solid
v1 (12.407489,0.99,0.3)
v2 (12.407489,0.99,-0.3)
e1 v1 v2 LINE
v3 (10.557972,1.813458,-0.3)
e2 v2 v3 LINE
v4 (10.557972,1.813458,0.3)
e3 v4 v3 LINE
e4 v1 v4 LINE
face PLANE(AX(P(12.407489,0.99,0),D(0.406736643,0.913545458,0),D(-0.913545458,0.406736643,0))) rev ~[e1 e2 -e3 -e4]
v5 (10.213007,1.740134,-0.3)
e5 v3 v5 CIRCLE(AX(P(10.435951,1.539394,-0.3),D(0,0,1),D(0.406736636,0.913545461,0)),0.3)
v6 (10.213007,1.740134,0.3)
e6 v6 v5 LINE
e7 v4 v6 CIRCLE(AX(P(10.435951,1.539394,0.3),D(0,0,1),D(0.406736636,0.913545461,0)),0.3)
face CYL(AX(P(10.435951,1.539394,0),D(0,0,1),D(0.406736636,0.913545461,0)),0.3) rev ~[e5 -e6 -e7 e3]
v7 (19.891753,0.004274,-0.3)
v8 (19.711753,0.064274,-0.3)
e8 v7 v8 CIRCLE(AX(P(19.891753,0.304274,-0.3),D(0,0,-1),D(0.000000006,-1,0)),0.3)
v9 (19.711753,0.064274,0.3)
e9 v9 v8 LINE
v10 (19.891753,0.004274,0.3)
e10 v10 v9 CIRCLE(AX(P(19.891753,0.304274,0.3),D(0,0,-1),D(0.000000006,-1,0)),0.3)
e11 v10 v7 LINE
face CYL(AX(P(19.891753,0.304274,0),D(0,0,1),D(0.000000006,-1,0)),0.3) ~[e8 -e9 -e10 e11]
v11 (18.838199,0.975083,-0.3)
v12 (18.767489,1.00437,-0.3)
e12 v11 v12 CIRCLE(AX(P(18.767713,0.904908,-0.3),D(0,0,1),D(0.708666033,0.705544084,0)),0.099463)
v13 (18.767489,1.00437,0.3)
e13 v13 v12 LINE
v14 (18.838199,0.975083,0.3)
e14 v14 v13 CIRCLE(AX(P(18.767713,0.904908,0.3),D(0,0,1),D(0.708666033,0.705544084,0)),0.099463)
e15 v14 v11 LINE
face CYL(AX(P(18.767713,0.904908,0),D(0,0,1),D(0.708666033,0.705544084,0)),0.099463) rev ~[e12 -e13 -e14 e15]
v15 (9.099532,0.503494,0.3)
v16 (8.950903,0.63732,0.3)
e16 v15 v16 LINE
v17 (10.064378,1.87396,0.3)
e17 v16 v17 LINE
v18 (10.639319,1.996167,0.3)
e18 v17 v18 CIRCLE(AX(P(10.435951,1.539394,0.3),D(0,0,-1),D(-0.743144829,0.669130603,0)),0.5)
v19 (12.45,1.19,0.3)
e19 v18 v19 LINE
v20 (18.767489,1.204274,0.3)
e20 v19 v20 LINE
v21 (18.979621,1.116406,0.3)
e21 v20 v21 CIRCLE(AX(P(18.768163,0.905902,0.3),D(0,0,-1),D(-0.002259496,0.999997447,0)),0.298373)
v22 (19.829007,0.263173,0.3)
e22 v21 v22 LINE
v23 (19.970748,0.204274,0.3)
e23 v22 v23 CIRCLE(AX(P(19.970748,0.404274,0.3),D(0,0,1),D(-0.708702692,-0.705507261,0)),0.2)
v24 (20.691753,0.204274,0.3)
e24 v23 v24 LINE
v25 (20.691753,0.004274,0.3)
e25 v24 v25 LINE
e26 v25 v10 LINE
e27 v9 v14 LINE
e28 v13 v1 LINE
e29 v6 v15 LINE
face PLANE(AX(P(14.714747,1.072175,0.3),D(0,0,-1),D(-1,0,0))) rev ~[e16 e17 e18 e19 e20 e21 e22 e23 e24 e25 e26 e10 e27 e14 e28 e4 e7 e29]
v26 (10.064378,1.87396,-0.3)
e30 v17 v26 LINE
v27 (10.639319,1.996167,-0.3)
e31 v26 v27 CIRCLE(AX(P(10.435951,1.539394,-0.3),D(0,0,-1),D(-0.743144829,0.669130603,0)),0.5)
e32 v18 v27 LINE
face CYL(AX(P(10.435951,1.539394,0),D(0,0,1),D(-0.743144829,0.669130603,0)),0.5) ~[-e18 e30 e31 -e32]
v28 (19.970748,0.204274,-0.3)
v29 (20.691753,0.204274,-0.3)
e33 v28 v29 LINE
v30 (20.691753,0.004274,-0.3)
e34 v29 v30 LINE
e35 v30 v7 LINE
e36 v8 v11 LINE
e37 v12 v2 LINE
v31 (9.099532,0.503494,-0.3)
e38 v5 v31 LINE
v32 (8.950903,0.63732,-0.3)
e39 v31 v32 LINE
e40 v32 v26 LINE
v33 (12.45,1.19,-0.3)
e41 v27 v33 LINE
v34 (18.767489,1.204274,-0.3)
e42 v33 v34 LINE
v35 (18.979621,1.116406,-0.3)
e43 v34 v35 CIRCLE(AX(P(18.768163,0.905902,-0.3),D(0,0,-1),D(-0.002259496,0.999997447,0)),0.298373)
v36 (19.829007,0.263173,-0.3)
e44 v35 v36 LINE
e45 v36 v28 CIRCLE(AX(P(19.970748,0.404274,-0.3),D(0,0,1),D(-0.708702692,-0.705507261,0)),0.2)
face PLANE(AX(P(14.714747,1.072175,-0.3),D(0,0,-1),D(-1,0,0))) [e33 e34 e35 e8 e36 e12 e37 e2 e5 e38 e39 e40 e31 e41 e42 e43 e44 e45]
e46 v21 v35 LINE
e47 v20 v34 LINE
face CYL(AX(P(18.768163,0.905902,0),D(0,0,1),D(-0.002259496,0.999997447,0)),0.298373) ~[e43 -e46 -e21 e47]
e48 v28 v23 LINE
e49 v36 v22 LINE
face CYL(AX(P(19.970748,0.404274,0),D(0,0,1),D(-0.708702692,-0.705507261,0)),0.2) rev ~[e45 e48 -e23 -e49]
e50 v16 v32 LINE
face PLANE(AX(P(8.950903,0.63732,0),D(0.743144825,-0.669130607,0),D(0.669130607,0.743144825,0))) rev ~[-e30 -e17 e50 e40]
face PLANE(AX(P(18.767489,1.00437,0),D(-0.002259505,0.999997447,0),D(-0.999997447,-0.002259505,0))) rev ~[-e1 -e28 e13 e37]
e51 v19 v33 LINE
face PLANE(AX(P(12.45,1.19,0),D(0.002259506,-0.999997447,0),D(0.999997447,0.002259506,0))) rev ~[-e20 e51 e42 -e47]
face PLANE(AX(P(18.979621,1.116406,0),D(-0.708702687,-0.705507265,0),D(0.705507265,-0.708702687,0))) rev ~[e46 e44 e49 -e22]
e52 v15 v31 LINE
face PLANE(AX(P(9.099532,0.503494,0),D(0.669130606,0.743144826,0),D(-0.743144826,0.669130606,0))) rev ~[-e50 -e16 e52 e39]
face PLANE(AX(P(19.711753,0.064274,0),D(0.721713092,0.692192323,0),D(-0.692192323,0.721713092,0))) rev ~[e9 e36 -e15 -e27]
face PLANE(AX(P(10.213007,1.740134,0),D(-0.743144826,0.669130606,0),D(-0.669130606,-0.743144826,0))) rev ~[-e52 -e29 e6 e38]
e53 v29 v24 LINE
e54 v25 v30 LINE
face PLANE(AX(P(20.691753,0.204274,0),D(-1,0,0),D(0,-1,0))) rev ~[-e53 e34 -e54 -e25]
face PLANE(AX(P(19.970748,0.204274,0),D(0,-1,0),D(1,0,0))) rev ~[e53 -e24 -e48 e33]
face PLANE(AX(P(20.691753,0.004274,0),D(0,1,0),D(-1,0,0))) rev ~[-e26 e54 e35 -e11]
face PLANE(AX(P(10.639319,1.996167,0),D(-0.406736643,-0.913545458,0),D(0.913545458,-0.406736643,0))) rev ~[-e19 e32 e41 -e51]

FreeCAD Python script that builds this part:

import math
import FreeCAD as App
import Part
import Sketcher

V = App.Vector
Q = App.Units.Quantity

doc = App.newDocument("Part")
body = doc.addObject("PartDesign::Body", "Body")

sketch1 = body.newObject("Sketcher::SketchObject", "Sketch")
sketch1.AttachmentSupport = (doc.getObject("XY_Plane"), [""])
sketch1.MapMode = "FlatFace"
sketch1.addGeometry([
    Part.LineSegment(V(20.691753, 0.004274, 0), V(20.691753, 0.204274, 0)),
    Part.LineSegment(V(20.691753, 0.204274, 0), V(19.970748, 0.204274, 0)),
    Part.ArcOfCircle(Part.Circle(V(19.970748, 0.404274, 0), V(0, 0, 1), 0.2), math.radians(-135.129461), math.radians(-90)),
    Part.LineSegment(V(19.829007, 0.263173, 0), V(18.979621, 1.116406, 0)),
    Part.ArcOfCircle(Part.Circle(V(18.768163, 0.905902, 0), V(0, 0, 1), 0.298373), math.radians(44.87054), math.radians(90.12946)),
    Part.LineSegment(V(18.767489, 1.204274, 0), V(12.45, 1.19, 0)),
    Part.LineSegment(V(12.45, 1.19, 0), V(10.639319, 1.996167, 0)),
    Part.ArcOfCircle(Part.Circle(V(10.435951, 1.539394, 0), V(0, 0, 1), 0.5), math.radians(66), math.radians(138)),
    Part.LineSegment(V(10.064378, 1.87396, 0), V(8.950903, 0.63732, 0)),
    Part.LineSegment(V(8.950903, 0.63732, 0), V(9.099532, 0.503494, 0)),
    Part.LineSegment(V(9.099532, 0.503494, 0), V(10.213007, 1.740134, 0)),
    Part.ArcOfCircle(Part.Circle(V(10.435951, 1.539394, 0), V(0, 0, 1), 0.3), math.radians(66), math.radians(138)),
    Part.LineSegment(V(10.557972, 1.813458, 0), V(12.407489, 0.99, 0)),
    Part.LineSegment(V(12.407489, 0.99, 0), V(18.767489, 1.00437, 0)),
    Part.ArcOfCircle(Part.Circle(V(18.767713, 0.904908, 0), V(0, 0, 1), 0.099463), math.radians(44.873516), math.radians(90.129461)),
    Part.LineSegment(V(18.838199, 0.975083, 0), V(19.711753, 0.064274, 0)),
    Part.ArcOfCircle(Part.Circle(V(19.891753, 0.304274, 0), V(0, 0, 1), 0.3), math.radians(-126.869898), math.radians(-90)),
    Part.LineSegment(V(19.891753, 0.004274, 0), V(20.691753, 0.004274, 0)),
], False)
sketch1.addConstraint([
    Sketcher.Constraint("Coincident", 0, 2, 1, 1),
    Sketcher.Constraint("Coincident", 1, 2, 2, 2),
    Sketcher.Constraint("Coincident", 2, 1, 3, 1),
    Sketcher.Constraint("Coincident", 3, 2, 4, 1),
    Sketcher.Constraint("Coincident", 4, 2, 5, 1),
    Sketcher.Constraint("Coincident", 5, 2, 6, 1),
    Sketcher.Constraint("Coincident", 6, 2, 7, 1),
    Sketcher.Constraint("Coincident", 7, 2, 8, 1),
    Sketcher.Constraint("Coincident", 8, 2, 9, 1),
    Sketcher.Constraint("Coincident", 9, 2, 10, 1),
    Sketcher.Constraint("Coincident", 10, 2, 11, 2),
    Sketcher.Constraint("Coincident", 11, 1, 12, 1),
    Sketcher.Constraint("Coincident", 12, 2, 13, 1),
    Sketcher.Constraint("Coincident", 13, 2, 14, 2),
    Sketcher.Constraint("Coincident", 14, 1, 15, 1),
    Sketcher.Constraint("Coincident", 15, 2, 16, 1),
    Sketcher.Constraint("Coincident", 16, 2, 17, 1),
    Sketcher.Constraint("Coincident", 17, 2, 0, 1),
    Sketcher.Constraint("Vertical", 0),
    Sketcher.Constraint("Horizontal", 1),
    Sketcher.Constraint("Horizontal", 17),
    Sketcher.Constraint("Coincident", 11, 3, 7, 3),
    Sketcher.Constraint("Radius", 2, Q("0.2 mm")),
    Sketcher.Constraint("Radius", 7, Q("0.5 mm")),
    Sketcher.Constraint("Radius", 11, Q("0.3 mm")),
    Sketcher.Constraint("Radius", 16, Q("0.3 mm")),
    Sketcher.Constraint("DistanceX", 17, 1, 17, 2, Q("0.8 mm")),
    Sketcher.Constraint("DistanceY", 0, 1, 0, 2, Q("0.2 mm")),
    Sketcher.Constraint("Distance", 9, Q("0.2 mm")),
    Sketcher.Constraint("DistanceX", 16, 3, 0, 2, Q("0.8 mm")),
    Sketcher.Constraint("DistanceY", 16, 3, 4, 2, Q("0.9 mm")),
    Sketcher.Constraint("DistanceY", 12, 2, 5, 2, Q("0.2 mm")),
    Sketcher.Constraint("DistanceX", -1, 1, 5, 2, Q("12.45 mm")),
    Sketcher.Constraint("DistanceY", -1, 1, 5, 2, Q("1.19 mm")),
    Sketcher.Constraint("DistanceY", 15, 2, 1, 2, Q("0.14 mm")),
    Sketcher.Constraint("Radius", 4, Q("0.298373 mm")),
    Sketcher.Constraint("Radius", 14, Q("0.099463 mm")),
    Sketcher.Constraint("DistanceX", -1, 1, 14, 1, Q("18.838199 mm")),
    Sketcher.Constraint("DistanceY", 2, 1, 16, 3, Q("0.041101 mm")),
    Sketcher.Constraint("DistanceY", 14, 3, 3, 2, Q("0.211499 mm")),
    Sketcher.Constraint("DistanceY", 9, 2, 11, 3, Q("1.0359 mm")),
    Sketcher.Constraint("DistanceY", 11, 1, 7, 2, Q("0.060502 mm")),
    Sketcher.Constraint("Distance", 12, Q("2.024549 mm")),
    Sketcher.Constraint("Distance", 15, Q("1.26201 mm")),
    Sketcher.Constraint("DistanceX", 1, 2, 1, 1, Q("0.721005 mm")),
    Sketcher.Constraint("DistanceX", -1, 1, 7, 3, Q("10.435951 mm")),
    Sketcher.Constraint("DistanceX", -1, 1, 3, 2, Q("18.979621 mm")),
    Sketcher.Constraint("DistanceX", -1, 1, 4, 2, Q("18.767489 mm")),
    Sketcher.Constraint("DistanceX", -1, 1, 6, 2, Q("10.639319 mm")),
    Sketcher.Constraint("DistanceX", -1, 1, 7, 2, Q("10.064378 mm")),
    Sketcher.Constraint("DistanceY", -1, 1, 7, 2, Q("1.87396 mm")),
    Sketcher.Constraint("DistanceY", -1, 1, 8, 2, Q("0.63732 mm")),
    Sketcher.Constraint("DistanceX", -1, 1, 9, 2, Q("9.099532 mm")),
    Sketcher.Constraint("DistanceX", -1, 1, 13, 2, Q("18.767489 mm")),
    Sketcher.Constraint("DistanceY", -1, 1, 13, 2, Q("1.00437 mm")),
    Sketcher.Constraint("DistanceY", 2, 3, 7, 3, Q("1.13512 mm")),
    Sketcher.Constraint("DistanceX", 14, 3, 4, 3, Q("0.000449 mm")),
    Sketcher.Constraint("DistanceX", 2, 1, 1, 2, Q("0.141741 mm")),
    Sketcher.Constraint("DistanceX", 7, 2, 10, 2, Q("0.148629 mm")),
])
pad1 = body.newObject("PartDesign::Pad", "Pad")
pad1.Profile = sketch1
pad1.Length = 0.6
pad1.Midplane = True

doc.recompute()
